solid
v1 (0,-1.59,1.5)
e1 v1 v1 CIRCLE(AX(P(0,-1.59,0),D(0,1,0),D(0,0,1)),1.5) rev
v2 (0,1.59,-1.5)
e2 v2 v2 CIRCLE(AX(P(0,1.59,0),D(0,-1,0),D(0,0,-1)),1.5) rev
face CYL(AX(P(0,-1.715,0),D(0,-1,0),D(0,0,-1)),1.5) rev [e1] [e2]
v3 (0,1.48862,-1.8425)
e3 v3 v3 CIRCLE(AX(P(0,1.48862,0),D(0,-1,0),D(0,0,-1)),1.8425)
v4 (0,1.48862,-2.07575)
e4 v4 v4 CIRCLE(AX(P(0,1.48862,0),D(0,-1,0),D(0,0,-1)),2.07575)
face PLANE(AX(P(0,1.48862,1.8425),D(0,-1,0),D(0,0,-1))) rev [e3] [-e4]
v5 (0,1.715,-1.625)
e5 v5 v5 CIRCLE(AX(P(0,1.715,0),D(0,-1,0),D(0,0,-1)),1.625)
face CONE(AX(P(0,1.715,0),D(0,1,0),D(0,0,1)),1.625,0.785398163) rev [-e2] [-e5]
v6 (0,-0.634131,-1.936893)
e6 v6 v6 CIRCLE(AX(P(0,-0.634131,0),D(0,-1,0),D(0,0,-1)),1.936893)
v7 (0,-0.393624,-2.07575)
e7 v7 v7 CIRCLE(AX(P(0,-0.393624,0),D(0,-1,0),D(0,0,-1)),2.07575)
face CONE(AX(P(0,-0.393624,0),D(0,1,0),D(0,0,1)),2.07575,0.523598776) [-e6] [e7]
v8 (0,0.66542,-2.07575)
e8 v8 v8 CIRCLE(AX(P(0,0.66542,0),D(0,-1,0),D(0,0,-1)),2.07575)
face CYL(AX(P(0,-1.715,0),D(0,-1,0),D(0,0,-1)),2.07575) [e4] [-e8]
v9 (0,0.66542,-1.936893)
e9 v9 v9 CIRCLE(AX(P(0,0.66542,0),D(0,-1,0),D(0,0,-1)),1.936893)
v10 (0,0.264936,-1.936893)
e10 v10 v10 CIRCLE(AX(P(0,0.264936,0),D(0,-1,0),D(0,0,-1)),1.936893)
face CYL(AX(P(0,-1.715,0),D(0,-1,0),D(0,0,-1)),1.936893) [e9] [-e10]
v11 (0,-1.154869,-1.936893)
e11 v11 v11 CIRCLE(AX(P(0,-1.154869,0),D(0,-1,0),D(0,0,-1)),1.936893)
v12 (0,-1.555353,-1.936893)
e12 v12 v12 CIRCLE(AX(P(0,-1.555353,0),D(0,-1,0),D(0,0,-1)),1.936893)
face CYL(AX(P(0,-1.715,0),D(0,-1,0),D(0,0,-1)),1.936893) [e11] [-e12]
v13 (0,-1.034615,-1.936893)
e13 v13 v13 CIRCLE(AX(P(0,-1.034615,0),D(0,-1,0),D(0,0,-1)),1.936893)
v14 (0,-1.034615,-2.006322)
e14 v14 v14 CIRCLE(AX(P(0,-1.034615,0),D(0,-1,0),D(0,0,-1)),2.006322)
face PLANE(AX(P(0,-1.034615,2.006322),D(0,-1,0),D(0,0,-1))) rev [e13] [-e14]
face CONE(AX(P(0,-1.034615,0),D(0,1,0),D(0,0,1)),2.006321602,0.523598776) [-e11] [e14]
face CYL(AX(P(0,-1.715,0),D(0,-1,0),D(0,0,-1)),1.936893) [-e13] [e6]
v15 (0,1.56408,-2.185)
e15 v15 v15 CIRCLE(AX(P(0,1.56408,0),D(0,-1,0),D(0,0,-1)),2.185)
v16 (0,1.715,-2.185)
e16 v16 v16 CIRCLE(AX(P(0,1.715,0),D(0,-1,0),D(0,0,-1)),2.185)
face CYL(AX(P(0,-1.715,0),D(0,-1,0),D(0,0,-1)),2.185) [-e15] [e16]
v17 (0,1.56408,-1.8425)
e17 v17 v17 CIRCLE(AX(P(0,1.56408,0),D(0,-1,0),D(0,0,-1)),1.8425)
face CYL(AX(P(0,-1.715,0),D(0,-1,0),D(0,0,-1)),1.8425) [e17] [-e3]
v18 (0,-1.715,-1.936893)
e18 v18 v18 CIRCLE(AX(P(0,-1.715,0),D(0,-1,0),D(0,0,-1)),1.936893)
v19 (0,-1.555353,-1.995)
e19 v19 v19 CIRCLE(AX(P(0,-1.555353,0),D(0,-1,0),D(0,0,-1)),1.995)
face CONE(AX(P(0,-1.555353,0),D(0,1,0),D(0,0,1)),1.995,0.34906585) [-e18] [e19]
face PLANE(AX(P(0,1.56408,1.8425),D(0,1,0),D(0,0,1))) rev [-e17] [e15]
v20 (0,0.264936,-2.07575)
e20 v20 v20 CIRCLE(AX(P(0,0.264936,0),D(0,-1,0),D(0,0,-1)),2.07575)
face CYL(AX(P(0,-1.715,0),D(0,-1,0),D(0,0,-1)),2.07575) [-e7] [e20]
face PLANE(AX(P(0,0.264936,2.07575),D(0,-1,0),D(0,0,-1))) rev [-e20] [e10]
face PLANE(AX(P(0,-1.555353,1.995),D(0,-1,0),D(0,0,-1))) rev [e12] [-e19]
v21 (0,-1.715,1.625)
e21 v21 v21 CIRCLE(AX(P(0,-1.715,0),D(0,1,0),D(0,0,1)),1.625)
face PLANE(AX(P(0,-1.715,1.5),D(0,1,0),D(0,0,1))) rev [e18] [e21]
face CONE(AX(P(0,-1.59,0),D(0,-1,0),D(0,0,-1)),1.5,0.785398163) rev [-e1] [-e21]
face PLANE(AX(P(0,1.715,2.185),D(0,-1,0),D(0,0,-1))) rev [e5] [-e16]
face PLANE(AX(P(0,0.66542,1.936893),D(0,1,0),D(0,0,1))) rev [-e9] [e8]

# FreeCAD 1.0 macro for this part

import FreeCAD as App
import Part
import Sketcher

V = App.Vector
Q = App.Units.Quantity


def edges_at(feature, points):
    """Names of the edges that pass closest to the given points."""
    edges = feature.Shape.Edges
    near = lambda p: min(range(len(edges)), key=lambda i: edges[i].distToShape(Part.Vertex(*p))[0])
    return sorted({f"Edge{near(p) + 1}" for p in points})


def add_polygon(sketch, points):
    """Adds a closed chain of lines whose ends are joined by coincident constraints."""
    first, n = sketch.GeometryCount, len(points)
    for a, b in zip(points, points[1:] + points[:1]):
        sketch.addGeometry(Part.LineSegment(App.Vector(*a, 0), App.Vector(*b, 0)), False)
    for i in range(n):
        sketch.addConstraint(Sketcher.Constraint("Coincident", first + i, 2, first + (i + 1) % n, 1))

doc = App.newDocument("Part")
params = doc.addObject("Spreadsheet::Sheet", "Params")
for row, (alias, value) in enumerate([
    ("sketch1_width", "3.43 mm"),
    ("revolution_angle", "360 deg"),
    ("chamfer_size", "0.125 mm"),
], start=1):
    params.set(f"A{row}", alias)
    params.set(f"B{row}", "=" + value)
    params.setAlias(f"B{row}", alias)

body = doc.addObject("PartDesign::Body", "Body")

# Sketch on YZ plane
sketch1 = doc.addObject("Sketcher::SketchObject", "Sketch")
body.addObject(sketch1)
sketch1.AttachmentSupport = (doc.YZ_Plane, [""])
sketch1.MapMode = "FlatFace"
add_polygon(sketch1, [(-1.72, 1.5), (1.72, 1.5), (1.72, 2.19), (1.56, 2.19), (1.56, 1.84), (1.49, 1.84), (1.49, 2.08), (0.67, 2.08), (0.67, 1.94), (0.26, 1.94), (0.26, 2.08), (-0.39, 2.08), (-0.63, 1.94), (-1.03, 1.94), (-1.03, 2.01), (-1.15, 1.94), (-1.56, 1.94), (-1.56, 2), (-1.72, 1.94)])  # lines 0-18
sketch1.addConstraint([
    Sketcher.Constraint("Horizontal", 0),
    Sketcher.Constraint("Vertical", 1),
    Sketcher.Constraint("Horizontal", 2),
    Sketcher.Constraint("Vertical", 3),
    Sketcher.Constraint("Horizontal", 4),
    Sketcher.Constraint("Vertical", 5),
    Sketcher.Constraint("Horizontal", 6),
    Sketcher.Constraint("Vertical", 7),
    Sketcher.Constraint("Horizontal", 8),
    Sketcher.Constraint("Vertical", 9),
    Sketcher.Constraint("Horizontal", 10),
    Sketcher.Constraint("Horizontal", 12),
    Sketcher.Constraint("Vertical", 13),
    Sketcher.Constraint("Horizontal", 15),
    Sketcher.Constraint("Vertical", 16),
    Sketcher.Constraint("Vertical", 18),
    Sketcher.Constraint("Parallel", 11, 14),
    Sketcher.Constraint("Horizontal", 6, 2, 9, 2),
    Sketcher.Constraint("Horizontal", 8, 2, 11, 2),
    Sketcher.Constraint("Horizontal", 12, 2, 14, 2),
    Sketcher.Constraint("Horizontal", 15, 2, 17, 2),
    Sketcher.Constraint("Equal", 8, 12),
    Sketcher.Constraint("Equal", 12, 15),
    Sketcher.Constraint("Angle", 11, Q("-150 deg")),
    Sketcher.Constraint("Angle", 17, Q("-160 deg")),
    Sketcher.Constraint("DistanceX", 0, 1, 0, 2, 3.43),
    Sketcher.Constraint("DistanceY", -1, 1, 0, 2, 1.5),
    Sketcher.Constraint("DistanceY", 1, 1, 1, 2, 0.685),
    Sketcher.Constraint("DistanceX", 6, 2, 6, 1, 0.8232),
    Sketcher.Constraint("DistanceY", 3, 2, 3, 1, 0.3425),
    Sketcher.Constraint("DistanceX", -1, 1, 0, 2, 1.715),
    Sketcher.Constraint("DistanceY", -1, 1, 16, 2, 1.995),
    Sketcher.Constraint("DistanceX", 2, 2, 2, 1, 0.15092),
    Sketcher.Constraint("DistanceX", 4, 2, 4, 1, 0.07546),
    Sketcher.Constraint("DistanceX", 10, 2, 10, 1, 0.65856),
    Sketcher.Constraint("DistanceY", 5, 1, 5, 2, 0.23325),
    Sketcher.Constraint("DistanceY", 13, 1, 13, 2, 0.069428),
    Sketcher.Constraint("DistanceX", 8, 2, 8, 1, 0.400484),
])
sketch1.setExpression("Constraints[44]", "Params.sketch1_width")
revolution = doc.addObject("PartDesign::Revolution", "Revolution")
body.addObject(revolution)
revolution.Profile = sketch1
revolution.ReferenceAxis = (sketch1, ["H_Axis"])
revolution.setExpression("Angle", "Params.revolution_angle")
doc.recompute()

chamfer = doc.addObject("PartDesign::Chamfer", "Chamfer")
body.addObject(chamfer)
chamfer.Base = (revolution, edges_at(revolution, [(0, -1.715, 1.5), (0, 1.715, 1.5)]))
chamfer.setExpression("Size", "Params.chamfer_size")

doc.recompute()
